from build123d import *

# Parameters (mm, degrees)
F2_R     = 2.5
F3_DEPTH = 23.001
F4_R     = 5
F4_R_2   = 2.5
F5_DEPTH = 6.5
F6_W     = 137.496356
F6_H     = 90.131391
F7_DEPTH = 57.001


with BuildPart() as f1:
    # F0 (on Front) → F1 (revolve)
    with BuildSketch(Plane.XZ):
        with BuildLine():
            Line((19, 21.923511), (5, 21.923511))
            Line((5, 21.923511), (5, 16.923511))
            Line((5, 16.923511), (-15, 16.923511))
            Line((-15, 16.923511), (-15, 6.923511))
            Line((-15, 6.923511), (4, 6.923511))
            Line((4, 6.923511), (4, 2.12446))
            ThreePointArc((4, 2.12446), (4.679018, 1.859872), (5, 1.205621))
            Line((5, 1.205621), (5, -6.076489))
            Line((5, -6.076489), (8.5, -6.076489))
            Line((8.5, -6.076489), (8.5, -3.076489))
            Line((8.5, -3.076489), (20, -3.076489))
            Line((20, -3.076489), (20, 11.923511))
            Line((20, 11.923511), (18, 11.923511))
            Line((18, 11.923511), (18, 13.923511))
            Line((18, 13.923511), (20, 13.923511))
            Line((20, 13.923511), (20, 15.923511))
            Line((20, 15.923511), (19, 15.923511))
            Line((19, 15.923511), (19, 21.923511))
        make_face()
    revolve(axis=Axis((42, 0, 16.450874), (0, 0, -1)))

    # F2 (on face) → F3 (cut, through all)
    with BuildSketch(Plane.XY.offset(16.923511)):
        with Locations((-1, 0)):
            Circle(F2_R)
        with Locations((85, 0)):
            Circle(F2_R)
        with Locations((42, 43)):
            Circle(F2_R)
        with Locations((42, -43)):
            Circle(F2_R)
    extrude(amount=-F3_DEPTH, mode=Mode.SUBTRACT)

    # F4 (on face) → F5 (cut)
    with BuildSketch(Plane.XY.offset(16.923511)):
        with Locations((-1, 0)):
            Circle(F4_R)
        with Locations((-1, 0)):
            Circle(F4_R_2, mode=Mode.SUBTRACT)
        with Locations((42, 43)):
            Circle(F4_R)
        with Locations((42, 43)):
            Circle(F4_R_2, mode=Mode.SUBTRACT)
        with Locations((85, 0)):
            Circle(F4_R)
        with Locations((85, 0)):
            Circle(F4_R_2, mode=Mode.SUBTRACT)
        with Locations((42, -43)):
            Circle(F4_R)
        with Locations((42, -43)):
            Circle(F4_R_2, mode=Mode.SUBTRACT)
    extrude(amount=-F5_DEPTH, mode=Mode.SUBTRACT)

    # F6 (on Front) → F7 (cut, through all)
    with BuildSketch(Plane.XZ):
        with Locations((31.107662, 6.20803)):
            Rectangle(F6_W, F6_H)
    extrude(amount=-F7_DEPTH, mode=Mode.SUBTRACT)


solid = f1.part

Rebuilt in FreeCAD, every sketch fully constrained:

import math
import FreeCAD as App
import Part
import Sketcher

V = App.Vector
Q = App.Units.Quantity


def add_polygon(sketch, points):
    """Adds a closed chain of lines whose ends are joined by coincident constraints."""
    first, n = sketch.GeometryCount, len(points)
    for a, b in zip(points, points[1:] + points[:1]):
        sketch.addGeometry(Part.LineSegment(App.Vector(*a, 0), App.Vector(*b, 0)), False)
    for i in range(n):
        sketch.addConstraint(Sketcher.Constraint("Coincident", first + i, 2, first + (i + 1) % n, 1))

doc = App.newDocument("Part")
params = doc.addObject("Spreadsheet::Sheet", "Params")
for row, (alias, value) in enumerate([
    ("sketch1_width", "14 mm"),
    ("sketch1_width2", "20 mm"),
    ("sketch1_width3", "19 mm"),
    ("sketch1_width4", "2 mm"),
    ("sketch1_width5", "1 mm"),
    ("revolution_angle", "360 deg"),
    ("sketch2_diameter", "5 mm"),
    ("sketch3_diameter", "10 mm"),
    ("sketch3_diameter2", "5 mm"),
    ("pocket2_length", "6.5 mm"),
], start=1):
    params.set(f"A{row}", alias)
    params.set(f"B{row}", "=" + value)
    params.setAlias(f"B{row}", alias)

body = doc.addObject("PartDesign::Body", "Body")

# Sketch on XZ plane
sketch1 = body.newObject("Sketcher::SketchObject", "Sketch")
sketch1.AttachmentSupport = (doc.getObject("XZ_Plane"), [""])
sketch1.MapMode = "FlatFace"
sketch1.addGeometry([
    Part.LineSegment(V(19, 21.923511, 0), V(5, 21.923511, 0)),  # 0
    Part.LineSegment(V(5, 21.923511, 0), V(5, 16.923511, 0)),  # 1
    Part.LineSegment(V(5, 16.923511, 0), V(-15, 16.923511, 0)),  # 2
    Part.LineSegment(V(-15, 16.923511, 0), V(-15, 6.923511, 0)),  # 3
    Part.LineSegment(V(-15, 6.923511, 0), V(4, 6.923511, 0)),  # 4
    Part.LineSegment(V(4, 6.923511, 0), V(4, 2.12446, 0)),  # 5
    Part.ArcOfCircle(Part.Circle(V(3.999999, 1.120875, 0), V(0, 0, 1), 1.003585), math.radians(4.844025), math.radians(89.999959)),  # 6
    Part.LineSegment(V(5, 1.205621, 0), V(5, -6.076489, 0)),  # 7
    Part.LineSegment(V(5, -6.076489, 0), V(8.5, -6.076489, 0)),  # 8
    Part.LineSegment(V(8.5, -6.076489, 0), V(8.5, -3.076489, 0)),  # 9
    Part.LineSegment(V(8.5, -3.076489, 0), V(20, -3.076489, 0)),  # 10
    Part.LineSegment(V(20, -3.076489, 0), V(20, 11.923511, 0)),  # 11
    Part.LineSegment(V(20, 11.923511, 0), V(18, 11.923511, 0)),  # 12
    Part.LineSegment(V(18, 11.923511, 0), V(18, 13.923511, 0)),  # 13
    Part.LineSegment(V(18, 13.923511, 0), V(20, 13.923511, 0)),  # 14
    Part.LineSegment(V(20, 13.923511, 0), V(20, 15.923511, 0)),  # 15
    Part.LineSegment(V(20, 15.923511, 0), V(19, 15.923511, 0)),  # 16
    Part.LineSegment(V(19, 15.923511, 0), V(19, 21.923511, 0)),  # 17
], False)
sketch1.addGeometry(Part.LineSegment(V(42, 21.923511, 0), V(42, -6.076489, 0)), True)  # axis
sketch1.addConstraint([
    Sketcher.Constraint("Coincident", 0, 2, 1, 1),
    Sketcher.Constraint("Coincident", 1, 2, 2, 1),
    Sketcher.Constraint("Coincident", 2, 2, 3, 1),
    Sketcher.Constraint("Coincident", 3, 2, 4, 1),
    Sketcher.Constraint("Coincident", 4, 2, 5, 1),
    Sketcher.Constraint("Coincident", 5, 2, 6, 2),
    Sketcher.Constraint("Coincident", 6, 1, 7, 1),
    Sketcher.Constraint("Coincident", 7, 2, 8, 1),
    Sketcher.Constraint("Coincident", 8, 2, 9, 1),
    Sketcher.Constraint("Coincident", 9, 2, 10, 1),
    Sketcher.Constraint("Coincident", 10, 2, 11, 1),
    Sketcher.Constraint("Coincident", 11, 2, 12, 1),
    Sketcher.Constraint("Coincident", 12, 2, 13, 1),
    Sketcher.Constraint("Coincident", 13, 2, 14, 1),
    Sketcher.Constraint("Coincident", 14, 2, 15, 1),
    Sketcher.Constraint("Coincident", 15, 2, 16, 1),
    Sketcher.Constraint("Coincident", 16, 2, 17, 1),
    Sketcher.Constraint("Coincident", 17, 2, 0, 1),
    Sketcher.Constraint("Horizontal", 0),
    Sketcher.Constraint("Vertical", 1),
    Sketcher.Constraint("Horizontal", 2),
    Sketcher.Constraint("Vertical", 3),
    Sketcher.Constraint("Horizontal", 4),
    Sketcher.Constraint("Vertical", 5),
    Sketcher.Constraint("Vertical", 7),
    Sketcher.Constraint("Horizontal", 8),
    Sketcher.Constraint("Vertical", 9),
    Sketcher.Constraint("Horizontal", 10),
    Sketcher.Constraint("Vertical", 11),
    Sketcher.Constraint("Horizontal", 12),
    Sketcher.Constraint("Vertical", 13),
    Sketcher.Constraint("Horizontal", 14),
    Sketcher.Constraint("Vertical", 15),
    Sketcher.Constraint("Horizontal", 16),
    Sketcher.Constraint("Vertical", 17),
    Sketcher.Constraint("Vertical", 18),
    Sketcher.Constraint("Horizontal", 17, 2, 18, 1),
    Sketcher.Constraint("Horizontal", 8, 2, 18, 2),
    Sketcher.Constraint("Vertical", 6, 3, 4, 2),
    Sketcher.Constraint("Vertical", 1, 2, 6, 1),
    Sketcher.Constraint("Vertical", 11, 2, 14, 2),
    Sketcher.Constraint("Equal", 14, 13),
    Sketcher.Constraint("Equal", 13, 15),
    Sketcher.Constraint("DistanceX", 0, 2, 0, 1, Q("14 mm")),
    Sketcher.Constraint("DistanceX", 2, 2, 2, 1, Q("20 mm")),
    Sketcher.Constraint("DistanceX", 4, 1, 4, 2, Q("19 mm")),
    Sketcher.Constraint("DistanceX", 12, 2, 12, 1, Q("2 mm")),
    Sketcher.Constraint("DistanceX", 16, 2, 16, 1, Q("1 mm")),
    Sketcher.Constraint("DistanceY", 1, 2, 1, 1, Q("5 mm")),
    Sketcher.Constraint("DistanceY", 3, 2, 3, 1, Q("10 mm")),
    Sketcher.Constraint("DistanceY", 9, 1, 9, 2, Q("3 mm")),
    Sketcher.Constraint("DistanceY", 11, 1, 11, 2, Q("15 mm")),
    Sketcher.Constraint("DistanceY", 17, 1, 17, 2, Q("6 mm")),
    Sketcher.Constraint("DistanceX", 8, 1, 8, 2, Q("3.5 mm")),
    Sketcher.Constraint("DistanceX", -1, 1, 6, 3, Q("3.999999 mm")),
    Sketcher.Constraint("DistanceX", -1, 1, 18, 1, Q("42 mm")),
    Sketcher.Constraint("Radius", 6, Q("1.003585 mm")),
    Sketcher.Constraint("DistanceY", 5, 2, 5, 1, Q("4.799051 mm")),
    Sketcher.Constraint("DistanceY", -1, 1, 0, 2, Q("21.923511 mm")),
])
sketch1.setExpression("Constraints[43]", "Params.sketch1_width")
sketch1.setExpression("Constraints[44]", "Params.sketch1_width2")
sketch1.setExpression("Constraints[45]", "Params.sketch1_width3")
sketch1.setExpression("Constraints[46]", "Params.sketch1_width4")
sketch1.setExpression("Constraints[47]", "Params.sketch1_width5")
revolution = body.newObject("PartDesign::Revolution", "Revolution")
revolution.Profile = sketch1
revolution.ReferenceAxis = (sketch1, ["Axis0"])
revolution.setExpression("Angle", "Params.revolution_angle")

# Sketch on XY plane
sketch2 = body.newObject("Sketcher::SketchObject", "Sketch001")
sketch2.AttachmentSupport = (doc.getObject("XY_Plane"), [""])
sketch2.MapMode = "FlatFace"
sketch2.AttachmentOffset = App.Placement(V(0, 0, 16.923511), App.Rotation())
sketch2.addGeometry([
    Part.Circle(V(-1, 0, 0), V(0, 0, 1), 2.5),
    Part.Circle(V(85, 0, 0), V(0, 0, 1), 2.5),
    Part.Circle(V(42, 43, 0), V(0, 0, 1), 2.5),
    Part.Circle(V(42, -43, 0), V(0, 0, 1), 2.5),
], False)
sketch2.addConstraint([
    Sketcher.Constraint("Equal", 0, 1),
    Sketcher.Constraint("Equal", 1, 2),
    Sketcher.Constraint("Equal", 2, 3),
    Sketcher.Constraint("Symmetric", 2, 3, 3, 3, -1),
    Sketcher.Constraint("PointOnObject", 0, 3, -1),
    Sketcher.Constraint("PointOnObject", 1, 3, -1),
    Sketcher.Constraint("Diameter", 0, Q("5 mm")),
    Sketcher.Constraint("DistanceX", 0, 3, -1, 1, Q("1 mm")),
    Sketcher.Constraint("DistanceX", -1, 1, 1, 3, Q("85 mm")),
    Sketcher.Constraint("DistanceX", -1, 1, 2, 3, Q("42 mm")),
    Sketcher.Constraint("DistanceY", -1, 1, 2, 3, Q("43 mm")),
])
sketch2.setExpression("Constraints[6]", "Params.sketch2_diameter")
pocket1 = body.newObject("PartDesign::Pocket", "Pocket")
pocket1.Profile = sketch2
pocket1.Type = "ThroughAll"

# Sketch on XY plane
sketch3 = body.newObject("Sketcher::SketchObject", "Sketch002")
sketch3.AttachmentSupport = (doc.getObject("XY_Plane"), [""])
sketch3.MapMode = "FlatFace"
sketch3.AttachmentOffset = App.Placement(V(0, 0, 16.923511), App.Rotation())
sketch3.addGeometry([
    Part.Circle(V(-1, 0, 0), V(0, 0, 1), 5),  # 0
    Part.Circle(V(-1, 0, 0), V(0, 0, 1), 2.5),  # 1
    Part.Circle(V(42, 43, 0), V(0, 0, 1), 5),  # 2
    Part.Circle(V(42, 43, 0), V(0, 0, 1), 2.5),  # 3
    Part.Circle(V(85, 0, 0), V(0, 0, 1), 5),  # 4
    Part.Circle(V(85, 0, 0), V(0, 0, 1), 2.5),  # 5
    Part.Circle(V(42, -43, 0), V(0, 0, 1), 5),  # 6
    Part.Circle(V(42, -43, 0), V(0, 0, 1), 2.5),  # 7
], False)
sketch3.addConstraint([
    Sketcher.Constraint("Coincident", 1, 3, 0, 3),
    Sketcher.Constraint("Coincident", 3, 3, 2, 3),
    Sketcher.Constraint("Coincident", 5, 3, 4, 3),
    Sketcher.Constraint("Coincident", 7, 3, 6, 3),
    Sketcher.Constraint("Equal", 0, 2),
    Sketcher.Constraint("Equal", 1, 3),
    Sketcher.Constraint("Equal", 2, 4),
    Sketcher.Constraint("Equal", 3, 5),
    Sketcher.Constraint("Equal", 4, 6),
    Sketcher.Constraint("Equal", 5, 7),
    Sketcher.Constraint("Symmetric", 2, 3, 6, 3, -1),
    Sketcher.Constraint("PointOnObject", 0, 3, -1),
    Sketcher.Constraint("PointOnObject", 4, 3, -1),
    Sketcher.Constraint("Diameter", 0, Q("10 mm")),
    Sketcher.Constraint("Diameter", 1, Q("5 mm")),
    Sketcher.Constraint("DistanceX", 0, 3, -1, 1, Q("1 mm")),
    Sketcher.Constraint("DistanceX", -1, 1, 2, 3, Q("42 mm")),
    Sketcher.Constraint("DistanceY", -1, 1, 2, 3, Q("43 mm")),
    Sketcher.Constraint("DistanceX", -1, 1, 4, 3, Q("85 mm")),
])
sketch3.setExpression("Constraints[13]", "Params.sketch3_diameter")
sketch3.setExpression("Constraints[14]", "Params.sketch3_diameter2")
pocket2 = body.newObject("PartDesign::Pocket", "Pocket001")
pocket2.Profile = sketch3
pocket2.setExpression("Length", "Params.pocket2_length")

# Sketch on XZ plane
sketch4 = body.newObject("Sketcher::SketchObject", "Sketch003")
sketch4.AttachmentSupport = (doc.getObject("XZ_Plane"), [""])
sketch4.MapMode = "FlatFace"
add_polygon(sketch4, [(-37.640516, 51.273725), (-37.640516, -38.857666), (99.85584, -38.857666), (99.85584, 51.273725)])  # lines 0-3
sketch4.addConstraint([
    Sketcher.Constraint("Vertical", 0),
    Sketcher.Constraint("Horizontal", 1),
    Sketcher.Constraint("Vertical", 2),
    Sketcher.Constraint("Horizontal", 3),
    Sketcher.Constraint("DistanceY", 0, 2, 0, 1, Q("90.131391 mm")),
    Sketcher.Constraint("DistanceX", 1, 1, 1, 2, Q("137.496356 mm")),
    Sketcher.Constraint("DistanceX", -1, 1, 1, 2, Q("99.85584 mm")),
    Sketcher.Constraint("DistanceY", 0, 2, -1, 1, Q("38.857666 mm")),
])
pocket3 = body.newObject("PartDesign::Pocket", "Pocket002")
pocket3.Profile = sketch4
pocket3.Type = "ThroughAll"

doc.recompute()
